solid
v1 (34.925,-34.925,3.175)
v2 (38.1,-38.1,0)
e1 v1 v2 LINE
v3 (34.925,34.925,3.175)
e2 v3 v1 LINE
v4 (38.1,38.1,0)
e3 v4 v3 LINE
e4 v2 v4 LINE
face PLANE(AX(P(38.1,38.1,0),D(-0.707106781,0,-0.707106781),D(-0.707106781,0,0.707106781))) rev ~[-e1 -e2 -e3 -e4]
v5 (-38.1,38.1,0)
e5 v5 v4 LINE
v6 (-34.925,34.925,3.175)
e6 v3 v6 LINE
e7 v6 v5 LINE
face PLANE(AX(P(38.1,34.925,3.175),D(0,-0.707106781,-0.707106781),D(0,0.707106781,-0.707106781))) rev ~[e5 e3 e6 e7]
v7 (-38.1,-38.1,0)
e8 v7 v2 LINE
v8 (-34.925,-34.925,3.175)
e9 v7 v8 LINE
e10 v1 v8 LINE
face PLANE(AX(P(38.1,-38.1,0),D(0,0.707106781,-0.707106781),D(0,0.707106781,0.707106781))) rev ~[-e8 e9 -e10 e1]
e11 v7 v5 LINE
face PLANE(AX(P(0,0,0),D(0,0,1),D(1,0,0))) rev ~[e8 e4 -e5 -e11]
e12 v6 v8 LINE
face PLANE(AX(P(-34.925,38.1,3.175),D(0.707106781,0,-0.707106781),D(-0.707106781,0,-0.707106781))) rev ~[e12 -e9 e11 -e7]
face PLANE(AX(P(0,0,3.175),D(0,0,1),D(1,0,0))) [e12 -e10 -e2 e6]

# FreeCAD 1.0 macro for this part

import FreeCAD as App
import Part
import Sketcher

V = App.Vector
Q = App.Units.Quantity


def add_polygon(sketch, points):
    """Adds a closed chain of lines whose ends are joined by coincident constraints."""
    first, n = sketch.GeometryCount, len(points)
    for a, b in zip(points, points[1:] + points[:1]):
        sketch.addGeometry(Part.LineSegment(App.Vector(*a, 0), App.Vector(*b, 0)), False)
    for i in range(n):
        sketch.addConstraint(Sketcher.Constraint("Coincident", first + i, 2, first + (i + 1) % n, 1))

doc = App.newDocument("Part")
body = doc.addObject("PartDesign::Body", "Body")

# Sketch on XY plane
sketch1 = body.newObject("Sketcher::SketchObject", "Sketch")
sketch1.AttachmentSupport = (doc.getObject("XY_Plane"), [""])
sketch1.MapMode = "FlatFace"
add_polygon(sketch1, [(-38.1, 38.1), (-38.1, -38.1), (38.1, -38.1), (38.1, 38.1)])  # lines 0-3
sketch1.addConstraint([
    Sketcher.Constraint("Vertical", 0),
    Sketcher.Constraint("Horizontal", 1),
    Sketcher.Constraint("Vertical", 2),
    Sketcher.Constraint("Horizontal", 3),
    Sketcher.Constraint("Symmetric", 0, 2, 2, 2, -1, 1),
    Sketcher.Constraint("Equal", 3, 0),
    Sketcher.Constraint("DistanceX", 1, 1, 1, 2, Q("3 in")),
])
pad1 = body.newObject("PartDesign::Pad", "Pad")
pad1.Profile = sketch1
pad1.Length = Q("0.125 in")

# Sketch on XZ plane
sketch2 = body.newObject("Sketcher::SketchObject", "Sketch001")
sketch2.AttachmentSupport = (doc.getObject("XZ_Plane"), [""])
sketch2.MapMode = "FlatFace"
sketch2.AttachmentOffset = App.Placement(V(0, 0, -1.5 * 25.4), App.Rotation())
add_polygon(sketch2, [(38.1, 3.175), (38.1, 0), (34.925, 3.175)])  # lines 0-2
add_polygon(sketch2, [(-34.925, 3.175), (-38.1, 0), (-38.1, 3.175)])  # lines 3-5
sketch2.addConstraint([
    Sketcher.Constraint("Vertical", 0),
    Sketcher.Constraint("Horizontal", 2),
    Sketcher.Constraint("Vertical", 4),
    Sketcher.Constraint("Horizontal", 5),
    Sketcher.Constraint("Symmetric", 0, 2, 3, 2, -1, 1),
    Sketcher.Constraint("Symmetric", 1, 2, 5, 2, -2),
    Sketcher.Constraint("PointOnObject", 0, 2, -1),
    Sketcher.Constraint("Perpendicular", 1, 3),
    Sketcher.Constraint("DistanceX", 3, 2, 0, 2, Q("3 in")),
    Sketcher.Constraint("DistanceX", 2, 1, 2, 2, Q("0.125 in")),
])
pocket1 = body.newObject("PartDesign::Pocket", "Pocket")
pocket1.Profile = sketch2
pocket1.Length = Q("3 in")
pocket1.Reversed = True

# Sketch on YZ plane
sketch3 = body.newObject("Sketcher::SketchObject", "Sketch002")
sketch3.AttachmentSupport = (doc.getObject("YZ_Plane"), [""])
sketch3.MapMode = "FlatFace"
sketch3.AttachmentOffset = App.Placement(V(0, 0, 1.5 * 25.4), App.Rotation())
add_polygon(sketch3, [(34.925, 3.175), (38.1, 0), (38.1, 3.175)])  # lines 0-2
add_polygon(sketch3, [(-38.1, 3.175), (-38.1, 0), (-34.925, 3.175)])  # lines 3-5
sketch3.addConstraint([
    Sketcher.Constraint("Vertical", 1),
    Sketcher.Constraint("Horizontal", 2),
    Sketcher.Constraint("Vertical", 3),
    Sketcher.Constraint("Horizontal", 5),
    Sketcher.Constraint("Symmetric", 0, 2, 3, 2, -1, 1),
    Sketcher.Constraint("Symmetric", 2, 2, 4, 2, -2),
    Sketcher.Constraint("PointOnObject", 0, 2, -1),
    Sketcher.Constraint("Perpendicular", 0, 4),
    Sketcher.Constraint("DistanceX", 3, 2, 0, 2, Q("3 in")),
    Sketcher.Constraint("DistanceX", 2, 2, 2, 1, Q("0.125 in")),
])
pocket2 = body.newObject("PartDesign::Pocket", "Pocket001")
pocket2.Profile = sketch3
pocket2.Length = Q("3 in")

doc.recompute()
